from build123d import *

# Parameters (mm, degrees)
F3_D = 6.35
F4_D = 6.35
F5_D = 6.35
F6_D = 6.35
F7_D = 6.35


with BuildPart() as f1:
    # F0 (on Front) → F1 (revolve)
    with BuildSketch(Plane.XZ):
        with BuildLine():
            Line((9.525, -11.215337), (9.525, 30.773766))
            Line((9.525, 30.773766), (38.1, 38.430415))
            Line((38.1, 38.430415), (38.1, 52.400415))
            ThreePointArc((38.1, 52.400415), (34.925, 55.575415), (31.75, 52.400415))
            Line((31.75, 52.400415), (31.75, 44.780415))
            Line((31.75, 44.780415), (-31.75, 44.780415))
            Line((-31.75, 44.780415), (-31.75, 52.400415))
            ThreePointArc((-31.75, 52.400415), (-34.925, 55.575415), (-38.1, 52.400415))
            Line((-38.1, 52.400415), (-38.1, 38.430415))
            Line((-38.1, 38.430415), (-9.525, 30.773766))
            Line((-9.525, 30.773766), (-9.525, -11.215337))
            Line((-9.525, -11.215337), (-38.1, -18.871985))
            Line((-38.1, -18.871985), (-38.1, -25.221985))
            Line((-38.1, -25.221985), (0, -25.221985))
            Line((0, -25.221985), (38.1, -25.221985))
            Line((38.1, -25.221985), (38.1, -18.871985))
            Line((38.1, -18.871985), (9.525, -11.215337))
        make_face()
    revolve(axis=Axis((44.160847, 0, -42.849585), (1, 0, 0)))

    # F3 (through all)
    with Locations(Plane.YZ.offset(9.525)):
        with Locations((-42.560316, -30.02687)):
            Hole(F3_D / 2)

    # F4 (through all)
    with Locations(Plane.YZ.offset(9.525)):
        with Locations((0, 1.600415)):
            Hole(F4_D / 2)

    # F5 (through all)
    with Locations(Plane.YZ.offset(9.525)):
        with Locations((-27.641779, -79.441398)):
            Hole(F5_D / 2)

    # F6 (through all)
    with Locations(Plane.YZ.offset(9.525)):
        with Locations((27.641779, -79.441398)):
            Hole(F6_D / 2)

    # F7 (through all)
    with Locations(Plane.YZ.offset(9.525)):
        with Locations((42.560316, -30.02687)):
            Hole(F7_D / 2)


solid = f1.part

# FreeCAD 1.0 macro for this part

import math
import FreeCAD as App
import Part
import Sketcher
Q = App.Units.Quantity

doc = App.newDocument("Part")
params = doc.addObject("Spreadsheet::Sheet", "Params")
for row, (alias, value) in enumerate([
    ("sketch1_width", "3 in"),
    ("sketch1_width2", "2.5 in"),
    ("sketch1_height", "0.3 in"),
    ("sketch1_height2", "0.55 in"),
    ("sketch1_height3", "0.25 in"),
    ("revolution_angle", "360 deg"),
    ("sketch2_diameter", "0.25 in"),
    ("hole_diameter", "0.25 in"),
    ("sketch3_diameter", "0.25 in"),
    ("hole2_diameter", "0.25 in"),
    ("sketch4_diameter", "0.25 in"),
    ("hole3_diameter", "0.25 in"),
    ("sketch5_diameter", "0.25 in"),
    ("hole4_diameter", "0.25 in"),
    ("sketch6_diameter", "0.25 in"),
    ("hole5_diameter", "0.25 in"),
], start=1):
    params.set(f"A{row}", alias)
    params.set(f"B{row}", "=" + value)
    params.setAlias(f"B{row}", alias)

body = doc.addObject("PartDesign::Body", "Body")

# Sketch on XZ plane
sketch1 = doc.addObject("Sketcher::SketchObject", "Sketch")
body.addObject(sketch1)
sketch1.AttachmentSupport = (doc.XZ_Plane, [""])
sketch1.MapMode = "FlatFace"
sketch1.addGeometry([
    Part.LineSegment(App.Vector(9.5, -11.2, 0), App.Vector(9.5, 30.8, 0)),  # 0
    Part.LineSegment(App.Vector(9.5, 30.8, 0), App.Vector(38.1, 38.4, 0)),  # 1
    Part.LineSegment(App.Vector(38.1, 38.4, 0), App.Vector(38.1, 52.4, 0)),  # 2
    Part.ArcOfCircle(Part.Circle(App.Vector(34.9, 52.4, 0), App.Vector(0, 0, 1), 3.2), math.radians(0), math.radians(180)),  # 3
    Part.LineSegment(App.Vector(31.8, 52.4, 0), App.Vector(31.8, 44.8, 0)),  # 4
    Part.LineSegment(App.Vector(31.8, 44.8, 0), App.Vector(-31.8, 44.8, 0)),  # 5
    Part.LineSegment(App.Vector(-31.8, 44.8, 0), App.Vector(-31.8, 52.4, 0)),  # 6
    Part.ArcOfCircle(Part.Circle(App.Vector(-34.9, 52.4, 0), App.Vector(0, 0, 1), 3.2), math.radians(0), math.radians(180)),  # 7
    Part.LineSegment(App.Vector(-38.1, 52.4, 0), App.Vector(-38.1, 38.4, 0)),  # 8
    Part.LineSegment(App.Vector(-38.1, 38.4, 0), App.Vector(-9.5, 30.8, 0)),  # 9
    Part.LineSegment(App.Vector(-9.5, 30.8, 0), App.Vector(-9.5, -11.2, 0)),  # 10
    Part.LineSegment(App.Vector(-9.5, -11.2, 0), App.Vector(-38.1, -18.9, 0)),  # 11
    Part.LineSegment(App.Vector(-38.1, -18.9, 0), App.Vector(-38.1, -25.2, 0)),  # 12
    Part.LineSegment(App.Vector(-38.1, -25.2, 0), App.Vector(38.1, -25.2, 0)),  # 13
    Part.LineSegment(App.Vector(38.1, -25.2, 0), App.Vector(38.1, -18.9, 0)),  # 14
    Part.LineSegment(App.Vector(38.1, -18.9, 0), App.Vector(9.5, -11.2, 0)),  # 15
], False)
sketch1.addGeometry(Part.LineSegment(App.Vector(-38.1, -42.8, 0), App.Vector(38.1, -42.8, 0)), True)  # axis
sketch1.addConstraint([
    Sketcher.Constraint("Coincident", 0, 2, 1, 1),
    Sketcher.Constraint("Coincident", 1, 2, 2, 1),
    Sketcher.Constraint("Tangent", 2, 2, 3, 1),
    Sketcher.Constraint("Tangent", 3, 2, 4, 1),
    Sketcher.Constraint("Coincident", 4, 2, 5, 1),
    Sketcher.Constraint("Coincident", 5, 2, 6, 1),
    Sketcher.Constraint("Tangent", 6, 2, 7, 1),
    Sketcher.Constraint("Tangent", 7, 2, 8, 1),
    Sketcher.Constraint("Coincident", 8, 2, 9, 1),
    Sketcher.Constraint("Coincident", 9, 2, 10, 1),
    Sketcher.Constraint("Coincident", 10, 2, 11, 1),
    Sketcher.Constraint("Coincident", 11, 2, 12, 1),
    Sketcher.Constraint("Coincident", 12, 2, 13, 1),
    Sketcher.Constraint("Coincident", 13, 2, 14, 1),
    Sketcher.Constraint("Coincident", 14, 2, 15, 1),
    Sketcher.Constraint("Coincident", 15, 2, 0, 1),
    Sketcher.Constraint("Vertical", 0),
    Sketcher.Constraint("Vertical", 2),
    Sketcher.Constraint("Vertical", 4),
    Sketcher.Constraint("Horizontal", 5),
    Sketcher.Constraint("Vertical", 6),
    Sketcher.Constraint("Vertical", 8),
    Sketcher.Constraint("Vertical", 10),
    Sketcher.Constraint("Vertical", 12),
    Sketcher.Constraint("Horizontal", 13),
    Sketcher.Constraint("Vertical", 14),
    Sketcher.Constraint("Horizontal", 16),
    Sketcher.Constraint("Equal", 3, 7),
    Sketcher.Constraint("Symmetric", 3, 3, 7, 3, -2),
    Sketcher.Constraint("Symmetric", 0, 2, 9, 2, -2),
    Sketcher.Constraint("Symmetric", 11, 2, 14, 2, -2),
    Sketcher.Constraint("Parallel", 1, 11),
    Sketcher.Constraint("Parallel", 9, 15),
    Sketcher.Constraint("Horizontal", 1, 2, 8, 2),
    Sketcher.Constraint("Vertical", 8, 2, 11, 2),
    Sketcher.Constraint("Vertical", 12, 2, 16, 1),
    Sketcher.Constraint("Vertical", 14, 2, 16, 2),
    Sketcher.Constraint("DistanceX", 13, 1, 13, 2, Q("3 in")),
    Sketcher.Constraint("DistanceX", 5, 2, 5, 1, Q("2.5 in")),
    Sketcher.Constraint("DistanceY", 4, 2, 4, 1, Q("0.3 in")),
    Sketcher.Constraint("Angle", 1, Q("15.000002 deg")),
    Sketcher.Constraint("DistanceX", 0, 2, 3, 3, Q("1 in")),
    Sketcher.Constraint("DistanceY", 2, 1, 2, 2, Q("0.55 in")),
    Sketcher.Constraint("DistanceY", 12, 2, 12, 1, Q("0.25 in")),
    Sketcher.Constraint("DistanceY", 11, 2, 8, 2, Q("2.256 in")),
    Sketcher.Constraint("DistanceY", 16, 1, 12, 2, Q("0.694 in")),
    Sketcher.Constraint("DistanceY", -1, 1, 3, 3, 52.400415),
])
sketch1.setExpression("Constraints[37]", "Params.sketch1_width")
sketch1.setExpression("Constraints[38]", "Params.sketch1_width2")
sketch1.setExpression("Constraints[39]", "Params.sketch1_height")
sketch1.setExpression("Constraints[42]", "Params.sketch1_height2")
sketch1.setExpression("Constraints[43]", "Params.sketch1_height3")
revolution = doc.addObject("PartDesign::Revolution", "Revolution")
body.addObject(revolution)
revolution.Profile = sketch1
revolution.ReferenceAxis = (sketch1, ["Axis0"])
revolution.setExpression("Angle", "Params.revolution_angle")

# Sketch on YZ plane
sketch2 = doc.addObject("Sketcher::SketchObject", "Sketch001")
body.addObject(sketch2)
sketch2.AttachmentSupport = (doc.YZ_Plane, [""])
sketch2.MapMode = "FlatFace"
sketch2.AttachmentOffset = App.Placement(App.Vector(0, 0, 0.375 * 25.4), App.Rotation())
sketch2.addGeometry(Part.Circle(App.Vector(-42.6, -30, 0), App.Vector(0, 0, 1), 3.2), False)
sketch2.addConstraint([
    Sketcher.Constraint("Diameter", 0, Q("0.25 in")),
    Sketcher.Constraint("DistanceY", 0, 3, -1, 1, 30.02687),
    Sketcher.Constraint("DistanceX", 0, 3, -1, 1, 42.560316),
])
sketch2.setExpression("Constraints[0]", "Params.sketch2_diameter")
doc.recompute()
hole = doc.addObject("PartDesign::Hole", "Hole")
body.addObject(hole)
hole.Profile = sketch2
hole.ThreadType = "None"
hole.setExpression("Diameter", "Params.hole_diameter")
hole.DepthType = "ThroughAll"

# Sketch on YZ plane
sketch3 = doc.addObject("Sketcher::SketchObject", "Sketch002")
body.addObject(sketch3)
sketch3.AttachmentSupport = (doc.YZ_Plane, [""])
sketch3.MapMode = "FlatFace"
sketch3.AttachmentOffset = App.Placement(App.Vector(0, 0, 0.375 * 25.4), App.Rotation())
sketch3.addGeometry(Part.Circle(App.Vector(0, 1.6, 0), App.Vector(0, 0, 1), 3.2), False)
sketch3.addConstraint([
    Sketcher.Constraint("PointOnObject", 0, 3, -2),
    Sketcher.Constraint("Diameter", 0, Q("0.25 in")),
    Sketcher.Constraint("DistanceY", -1, 1, 0, 3, 1.600415),
])
sketch3.setExpression("Constraints[1]", "Params.sketch3_diameter")
doc.recompute()
hole2 = doc.addObject("PartDesign::Hole", "Hole001")
body.addObject(hole2)
hole2.Profile = sketch3
hole2.ThreadType = "None"
hole2.setExpression("Diameter", "Params.hole2_diameter")
hole2.DepthType = "ThroughAll"

# Sketch on YZ plane
sketch4 = doc.addObject("Sketcher::SketchObject", "Sketch003")
body.addObject(sketch4)
sketch4.AttachmentSupport = (doc.YZ_Plane, [""])
sketch4.MapMode = "FlatFace"
sketch4.AttachmentOffset = App.Placement(App.Vector(0, 0, 0.375 * 25.4), App.Rotation())
sketch4.addGeometry(Part.Circle(App.Vector(-27.6, -79.4, 0), App.Vector(0, 0, 1), 3.2), False)
sketch4.addConstraint([
    Sketcher.Constraint("Diameter", 0, Q("0.25 in")),
    Sketcher.Constraint("DistanceY", 0, 3, -1, 1, 79.441398),
    Sketcher.Constraint("DistanceX", 0, 3, -1, 1, 27.641779),
])
sketch4.setExpression("Constraints[0]", "Params.sketch4_diameter")
doc.recompute()
hole3 = doc.addObject("PartDesign::Hole", "Hole002")
body.addObject(hole3)
hole3.Profile = sketch4
hole3.ThreadType = "None"
hole3.setExpression("Diameter", "Params.hole3_diameter")
hole3.DepthType = "ThroughAll"

# Sketch on YZ plane
sketch5 = doc.addObject("Sketcher::SketchObject", "Sketch004")
body.addObject(sketch5)
sketch5.AttachmentSupport = (doc.YZ_Plane, [""])
sketch5.MapMode = "FlatFace"
sketch5.AttachmentOffset = App.Placement(App.Vector(0, 0, 0.375 * 25.4), App.Rotation())
sketch5.addGeometry(Part.Circle(App.Vector(27.6, -79.4, 0), App.Vector(0, 0, 1), 3.2), False)
sketch5.addConstraint([
    Sketcher.Constraint("Diameter", 0, Q("0.25 in")),
    Sketcher.Constraint("DistanceY", 0, 3, -1, 1, 79.441398),
    Sketcher.Constraint("DistanceX", -1, 1, 0, 3, 27.641779),
])
sketch5.setExpression("Constraints[0]", "Params.sketch5_diameter")
doc.recompute()
hole4 = doc.addObject("PartDesign::Hole", "Hole003")
body.addObject(hole4)
hole4.Profile = sketch5
hole4.ThreadType = "None"
hole4.setExpression("Diameter", "Params.hole4_diameter")
hole4.DepthType = "ThroughAll"

# Sketch on YZ plane
sketch6 = doc.addObject("Sketcher::SketchObject", "Sketch005")
body.addObject(sketch6)
sketch6.AttachmentSupport = (doc.YZ_Plane, [""])
sketch6.MapMode = "FlatFace"
sketch6.AttachmentOffset = App.Placement(App.Vector(0, 0, 0.375 * 25.4), App.Rotation())
sketch6.addGeometry(Part.Circle(App.Vector(42.6, -30, 0), App.Vector(0, 0, 1), 3.2), False)
sketch6.addConstraint([
    Sketcher.Constraint("Diameter", 0, Q("0.25 in")),
    Sketcher.Constraint("DistanceY", 0, 3, -1, 1, 30.02687),
    Sketcher.Constraint("DistanceX", -1, 1, 0, 3, 42.560316),
])
sketch6.setExpression("Constraints[0]", "Params.sketch6_diameter")
doc.recompute()
hole5 = doc.addObject("PartDesign::Hole", "Hole004")
body.addObject(hole5)
hole5.Profile = sketch6
hole5.ThreadType = "None"
hole5.setExpression("Diameter", "Params.hole5_diameter")
hole5.DepthType = "ThroughAll"

doc.recompute()
